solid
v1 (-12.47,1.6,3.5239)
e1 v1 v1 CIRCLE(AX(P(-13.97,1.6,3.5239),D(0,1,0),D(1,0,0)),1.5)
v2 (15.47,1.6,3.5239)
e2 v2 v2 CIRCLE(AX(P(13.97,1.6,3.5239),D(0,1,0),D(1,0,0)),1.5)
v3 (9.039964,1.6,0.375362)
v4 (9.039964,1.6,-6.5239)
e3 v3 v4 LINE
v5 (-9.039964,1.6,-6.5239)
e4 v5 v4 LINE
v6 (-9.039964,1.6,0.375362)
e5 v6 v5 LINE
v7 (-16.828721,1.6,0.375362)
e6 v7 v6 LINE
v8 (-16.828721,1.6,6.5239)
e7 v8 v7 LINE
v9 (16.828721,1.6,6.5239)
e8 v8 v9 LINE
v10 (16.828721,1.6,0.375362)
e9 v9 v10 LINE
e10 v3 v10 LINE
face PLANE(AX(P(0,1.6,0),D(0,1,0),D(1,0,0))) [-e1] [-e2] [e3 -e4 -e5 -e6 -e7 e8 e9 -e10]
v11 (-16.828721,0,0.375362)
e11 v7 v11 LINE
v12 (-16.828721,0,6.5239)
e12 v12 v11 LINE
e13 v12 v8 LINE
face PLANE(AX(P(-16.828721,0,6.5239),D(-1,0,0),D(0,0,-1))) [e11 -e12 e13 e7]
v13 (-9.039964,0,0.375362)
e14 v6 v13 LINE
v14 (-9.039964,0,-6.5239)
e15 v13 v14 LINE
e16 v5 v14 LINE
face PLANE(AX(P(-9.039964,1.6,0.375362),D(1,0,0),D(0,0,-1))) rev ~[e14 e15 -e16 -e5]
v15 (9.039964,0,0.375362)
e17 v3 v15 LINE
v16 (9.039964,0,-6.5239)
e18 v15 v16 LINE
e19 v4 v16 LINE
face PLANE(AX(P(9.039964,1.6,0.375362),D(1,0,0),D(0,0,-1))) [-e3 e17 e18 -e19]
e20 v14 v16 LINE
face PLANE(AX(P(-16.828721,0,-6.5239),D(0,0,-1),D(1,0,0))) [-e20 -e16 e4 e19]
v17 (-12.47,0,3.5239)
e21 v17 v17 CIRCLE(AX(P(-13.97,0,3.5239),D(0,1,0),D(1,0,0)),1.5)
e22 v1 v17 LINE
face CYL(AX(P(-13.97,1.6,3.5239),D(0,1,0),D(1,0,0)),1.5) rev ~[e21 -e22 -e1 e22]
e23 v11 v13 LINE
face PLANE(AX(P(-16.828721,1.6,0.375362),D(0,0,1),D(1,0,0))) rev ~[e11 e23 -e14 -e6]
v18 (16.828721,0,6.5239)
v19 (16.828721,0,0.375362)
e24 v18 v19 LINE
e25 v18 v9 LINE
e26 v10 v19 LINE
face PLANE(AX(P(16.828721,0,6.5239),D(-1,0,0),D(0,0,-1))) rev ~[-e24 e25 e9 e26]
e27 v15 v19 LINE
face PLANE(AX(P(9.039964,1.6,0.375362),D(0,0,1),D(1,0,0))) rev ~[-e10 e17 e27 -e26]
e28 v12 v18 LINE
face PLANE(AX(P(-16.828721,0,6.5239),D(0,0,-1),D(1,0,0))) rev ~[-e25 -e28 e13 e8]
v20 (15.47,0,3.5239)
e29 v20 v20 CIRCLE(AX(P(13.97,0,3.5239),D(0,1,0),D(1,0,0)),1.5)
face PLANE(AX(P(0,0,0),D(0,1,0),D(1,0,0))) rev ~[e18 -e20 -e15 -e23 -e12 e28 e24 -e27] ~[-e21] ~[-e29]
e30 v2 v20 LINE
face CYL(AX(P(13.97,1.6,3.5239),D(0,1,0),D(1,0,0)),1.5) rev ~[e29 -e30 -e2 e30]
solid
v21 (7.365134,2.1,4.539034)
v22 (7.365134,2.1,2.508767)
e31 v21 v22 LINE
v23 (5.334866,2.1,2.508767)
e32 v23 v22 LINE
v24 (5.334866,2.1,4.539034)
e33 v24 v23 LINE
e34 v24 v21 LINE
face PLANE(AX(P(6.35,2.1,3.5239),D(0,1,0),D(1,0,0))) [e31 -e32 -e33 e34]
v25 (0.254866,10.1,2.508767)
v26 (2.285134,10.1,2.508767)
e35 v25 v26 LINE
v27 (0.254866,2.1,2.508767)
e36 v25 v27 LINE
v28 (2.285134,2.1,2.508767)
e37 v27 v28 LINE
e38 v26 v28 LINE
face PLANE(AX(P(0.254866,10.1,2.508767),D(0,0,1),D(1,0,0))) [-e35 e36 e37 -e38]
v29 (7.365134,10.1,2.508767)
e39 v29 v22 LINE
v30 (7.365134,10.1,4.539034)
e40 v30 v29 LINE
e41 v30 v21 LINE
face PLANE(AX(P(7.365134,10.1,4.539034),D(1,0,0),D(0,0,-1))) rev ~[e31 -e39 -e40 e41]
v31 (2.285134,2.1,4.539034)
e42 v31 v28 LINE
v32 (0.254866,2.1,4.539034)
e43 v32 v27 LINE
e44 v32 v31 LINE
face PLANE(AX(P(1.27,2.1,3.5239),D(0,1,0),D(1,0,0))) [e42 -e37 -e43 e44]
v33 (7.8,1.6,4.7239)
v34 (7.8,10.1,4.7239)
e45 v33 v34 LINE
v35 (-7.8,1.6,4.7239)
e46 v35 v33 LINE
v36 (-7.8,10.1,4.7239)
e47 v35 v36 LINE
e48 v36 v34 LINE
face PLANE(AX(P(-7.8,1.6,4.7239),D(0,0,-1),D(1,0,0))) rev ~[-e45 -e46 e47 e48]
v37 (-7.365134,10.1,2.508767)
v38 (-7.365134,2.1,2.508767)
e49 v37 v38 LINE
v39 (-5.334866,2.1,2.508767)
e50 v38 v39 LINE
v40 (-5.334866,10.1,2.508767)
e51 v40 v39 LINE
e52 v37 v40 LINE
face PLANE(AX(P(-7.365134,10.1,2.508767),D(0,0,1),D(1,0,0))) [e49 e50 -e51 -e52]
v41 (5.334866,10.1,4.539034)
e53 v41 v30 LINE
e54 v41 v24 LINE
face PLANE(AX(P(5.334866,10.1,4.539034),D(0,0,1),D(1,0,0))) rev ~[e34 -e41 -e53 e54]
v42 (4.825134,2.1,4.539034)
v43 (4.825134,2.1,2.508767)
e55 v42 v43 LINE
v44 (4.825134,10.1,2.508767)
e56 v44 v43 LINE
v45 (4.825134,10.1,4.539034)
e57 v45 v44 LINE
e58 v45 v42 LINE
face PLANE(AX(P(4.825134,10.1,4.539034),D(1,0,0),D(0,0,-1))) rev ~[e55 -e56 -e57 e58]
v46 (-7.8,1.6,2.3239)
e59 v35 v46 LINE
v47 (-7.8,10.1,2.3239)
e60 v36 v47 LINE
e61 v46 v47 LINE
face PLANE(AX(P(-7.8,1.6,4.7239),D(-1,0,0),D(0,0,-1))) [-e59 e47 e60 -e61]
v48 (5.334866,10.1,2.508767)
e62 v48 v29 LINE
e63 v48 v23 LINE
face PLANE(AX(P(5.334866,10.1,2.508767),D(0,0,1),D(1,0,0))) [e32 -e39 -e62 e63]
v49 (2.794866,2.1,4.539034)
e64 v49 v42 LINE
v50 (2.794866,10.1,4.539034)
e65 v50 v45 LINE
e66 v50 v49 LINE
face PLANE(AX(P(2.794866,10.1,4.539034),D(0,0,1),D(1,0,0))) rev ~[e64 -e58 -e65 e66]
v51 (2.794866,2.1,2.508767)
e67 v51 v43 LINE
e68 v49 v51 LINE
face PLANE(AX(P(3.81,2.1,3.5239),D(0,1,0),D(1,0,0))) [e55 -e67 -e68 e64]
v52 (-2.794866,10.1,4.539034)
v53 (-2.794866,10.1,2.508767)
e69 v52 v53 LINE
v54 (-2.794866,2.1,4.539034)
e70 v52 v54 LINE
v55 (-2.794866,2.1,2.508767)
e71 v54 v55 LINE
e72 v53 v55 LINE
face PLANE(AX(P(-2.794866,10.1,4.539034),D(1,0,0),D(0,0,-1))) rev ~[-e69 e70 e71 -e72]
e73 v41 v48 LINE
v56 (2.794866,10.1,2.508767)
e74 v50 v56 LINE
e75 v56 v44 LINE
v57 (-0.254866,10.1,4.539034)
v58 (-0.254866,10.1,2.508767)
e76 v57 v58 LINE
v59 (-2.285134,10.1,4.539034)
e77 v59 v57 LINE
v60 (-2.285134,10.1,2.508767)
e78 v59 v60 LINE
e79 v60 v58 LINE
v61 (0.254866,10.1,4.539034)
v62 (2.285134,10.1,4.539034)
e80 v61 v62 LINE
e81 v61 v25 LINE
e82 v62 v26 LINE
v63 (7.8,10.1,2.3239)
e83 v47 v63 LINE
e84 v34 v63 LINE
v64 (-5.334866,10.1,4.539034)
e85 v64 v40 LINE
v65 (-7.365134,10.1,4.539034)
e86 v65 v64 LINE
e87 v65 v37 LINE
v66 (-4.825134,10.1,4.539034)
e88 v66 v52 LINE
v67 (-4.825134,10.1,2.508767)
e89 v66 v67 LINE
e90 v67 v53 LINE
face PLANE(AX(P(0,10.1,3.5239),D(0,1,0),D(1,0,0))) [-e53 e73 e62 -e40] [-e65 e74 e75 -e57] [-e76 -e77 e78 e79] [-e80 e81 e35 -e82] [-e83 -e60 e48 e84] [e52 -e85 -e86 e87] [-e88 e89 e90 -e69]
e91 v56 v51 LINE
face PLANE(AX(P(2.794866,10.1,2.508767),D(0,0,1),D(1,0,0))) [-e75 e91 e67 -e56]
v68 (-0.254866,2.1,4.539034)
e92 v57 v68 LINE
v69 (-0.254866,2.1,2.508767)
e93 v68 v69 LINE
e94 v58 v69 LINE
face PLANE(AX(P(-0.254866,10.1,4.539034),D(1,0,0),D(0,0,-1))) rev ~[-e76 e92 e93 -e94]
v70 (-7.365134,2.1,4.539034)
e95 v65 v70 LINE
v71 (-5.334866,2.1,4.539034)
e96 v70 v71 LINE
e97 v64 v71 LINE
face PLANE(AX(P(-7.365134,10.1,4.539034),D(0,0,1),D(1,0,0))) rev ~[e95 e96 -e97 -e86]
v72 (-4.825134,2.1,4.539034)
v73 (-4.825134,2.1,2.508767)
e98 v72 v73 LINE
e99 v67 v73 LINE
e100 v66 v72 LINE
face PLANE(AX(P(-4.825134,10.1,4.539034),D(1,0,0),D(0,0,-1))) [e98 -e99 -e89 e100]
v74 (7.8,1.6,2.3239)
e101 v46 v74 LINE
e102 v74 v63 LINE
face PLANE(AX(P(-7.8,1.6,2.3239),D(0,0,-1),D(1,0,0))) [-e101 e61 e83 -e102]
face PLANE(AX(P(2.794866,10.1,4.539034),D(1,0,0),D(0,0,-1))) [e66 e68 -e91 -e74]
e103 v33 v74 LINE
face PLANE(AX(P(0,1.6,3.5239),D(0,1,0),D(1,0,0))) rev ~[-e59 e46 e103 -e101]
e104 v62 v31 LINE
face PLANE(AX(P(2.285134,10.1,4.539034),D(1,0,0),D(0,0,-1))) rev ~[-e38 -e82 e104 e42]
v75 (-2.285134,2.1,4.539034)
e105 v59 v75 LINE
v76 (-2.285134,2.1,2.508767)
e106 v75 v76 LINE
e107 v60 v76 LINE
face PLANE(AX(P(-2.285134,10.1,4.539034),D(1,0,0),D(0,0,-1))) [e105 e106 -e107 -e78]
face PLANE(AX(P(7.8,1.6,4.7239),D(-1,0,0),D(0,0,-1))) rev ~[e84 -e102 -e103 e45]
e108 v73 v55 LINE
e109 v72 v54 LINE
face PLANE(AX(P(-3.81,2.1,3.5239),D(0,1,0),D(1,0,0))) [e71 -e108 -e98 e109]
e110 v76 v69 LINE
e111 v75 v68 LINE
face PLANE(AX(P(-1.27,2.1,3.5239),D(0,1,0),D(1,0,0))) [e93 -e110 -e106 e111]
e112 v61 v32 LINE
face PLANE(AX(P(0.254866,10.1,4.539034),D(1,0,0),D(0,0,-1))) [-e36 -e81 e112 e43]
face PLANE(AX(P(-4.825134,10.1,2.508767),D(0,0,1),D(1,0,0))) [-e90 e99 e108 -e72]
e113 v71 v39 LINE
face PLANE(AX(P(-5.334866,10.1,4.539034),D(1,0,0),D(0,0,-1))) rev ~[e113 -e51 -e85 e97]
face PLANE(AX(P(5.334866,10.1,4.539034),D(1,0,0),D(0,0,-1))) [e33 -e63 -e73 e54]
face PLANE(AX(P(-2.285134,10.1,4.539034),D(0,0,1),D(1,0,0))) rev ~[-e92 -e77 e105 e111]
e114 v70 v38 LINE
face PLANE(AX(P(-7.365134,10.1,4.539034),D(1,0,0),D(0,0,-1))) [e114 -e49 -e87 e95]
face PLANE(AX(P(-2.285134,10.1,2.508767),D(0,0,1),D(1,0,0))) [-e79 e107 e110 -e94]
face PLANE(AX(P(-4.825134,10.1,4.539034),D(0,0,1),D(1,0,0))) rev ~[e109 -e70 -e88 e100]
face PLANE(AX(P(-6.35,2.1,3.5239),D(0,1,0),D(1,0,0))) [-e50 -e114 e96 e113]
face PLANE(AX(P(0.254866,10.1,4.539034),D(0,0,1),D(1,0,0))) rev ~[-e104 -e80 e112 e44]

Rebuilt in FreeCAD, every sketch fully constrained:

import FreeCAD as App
import Part
import Sketcher


def add_polygon(sketch, points):
    """Adds a closed chain of lines whose ends are joined by coincident constraints."""
    first, n = sketch.GeometryCount, len(points)
    for a, b in zip(points, points[1:] + points[:1]):
        sketch.addGeometry(Part.LineSegment(App.Vector(*a, 0), App.Vector(*b, 0)), False)
    for i in range(n):
        sketch.addConstraint(Sketcher.Constraint("Coincident", first + i, 2, first + (i + 1) % n, 1))

doc = App.newDocument("Part")
params = doc.addObject("Spreadsheet::Sheet", "Params")
for row, (alias, value) in enumerate([
    ("pad1_length", "1.6 mm"),
    ("sketch2_diameter", "3 mm"),
    ("sketch4_width", "15.6 mm"),
    ("sketch4_height", "2.4 mm"),
    ("pad2_length", "8.5 mm"),
    ("pocket3_length", "8 mm"),
], start=1):
    params.set(f"A{row}", alias)
    params.set(f"B{row}", "=" + value)
    params.setAlias(f"B{row}", alias)

body = doc.addObject("PartDesign::Body", "Body")

# Sketch on XZ plane
sketch1 = body.newObject("Sketcher::SketchObject", "Sketch")
sketch1.AttachmentSupport = (doc.getObject("XZ_Plane"), [""])
sketch1.MapMode = "FlatFace"
add_polygon(sketch1, [(-16.828721, -6.5239), (-16.828721, 6.5239), (16.828721, 6.5239), (16.828721, -6.5239)])  # lines 0-3
sketch1.addConstraint([
    Sketcher.Constraint("Vertical", 0),
    Sketcher.Constraint("Horizontal", 1),
    Sketcher.Constraint("Vertical", 2),
    Sketcher.Constraint("Horizontal", 3),
    Sketcher.Constraint("Symmetric", 0, 2, 2, 2, -1, 1),
    Sketcher.Constraint("DistanceY", 0, 1, 0, 2, 13.047801),
    Sketcher.Constraint("DistanceX", 1, 1, 1, 2, 33.657443),
])
pad1 = body.newObject("PartDesign::Pad", "Pad")
pad1.Profile = sketch1
pad1.setExpression("Length", "Params.pad1_length")
pad1.Reversed = True

# Sketch on XZ plane
sketch2 = body.newObject("Sketcher::SketchObject", "Sketch001")
sketch2.AttachmentSupport = (doc.getObject("XZ_Plane"), [""])
sketch2.MapMode = "FlatFace"
sketch2.AttachmentOffset = App.Placement(App.Vector(0, 0, -1.6), App.Rotation())
sketch2.addGeometry([
    Part.Circle(App.Vector(-13.97, 3.5239, 0), App.Vector(0, 0, 1), 1.5),
    Part.Circle(App.Vector(13.97, 3.5239, 0), App.Vector(0, 0, 1), 1.5),
], False)
sketch2.addConstraint([
    Sketcher.Constraint("Equal", 0, 1),
    Sketcher.Constraint("Symmetric", 0, 3, 1, 3, -2),
    Sketcher.Constraint("Diameter", 0, 3.0),
    Sketcher.Constraint("DistanceX", 0, 3, -1, 1, 13.97),
    Sketcher.Constraint("DistanceY", -1, 1, 0, 3, 3.5239),
])
sketch2.setExpression("Constraints[2]", "Params.sketch2_diameter")
pocket1 = body.newObject("PartDesign::Pocket", "Pocket")
pocket1.Profile = sketch2
pocket1.Type = "ThroughAll"
pocket1.Reversed = True

# Sketch on XZ plane
sketch3 = body.newObject("Sketcher::SketchObject", "Sketch002")
sketch3.AttachmentSupport = (doc.getObject("XZ_Plane"), [""])
sketch3.MapMode = "FlatFace"
sketch3.AttachmentOffset = App.Placement(App.Vector(0, 0, -1.6), App.Rotation())
add_polygon(sketch3, [(-16.828721, -6.5239), (-16.828721, 0.375362), (-9.039964, 0.375362), (-9.039964, -6.5239)])  # lines 0-3
add_polygon(sketch3, [(9.039964, -6.5239), (9.039964, 0.375362), (16.828721, 0.375362), (16.828721, -6.5239)])  # lines 4-7
sketch3.addConstraint([
    Sketcher.Constraint("Vertical", 0),
    Sketcher.Constraint("Horizontal", 1),
    Sketcher.Constraint("Vertical", 2),
    Sketcher.Constraint("Horizontal", 3),
    Sketcher.Constraint("Vertical", 4),
    Sketcher.Constraint("Horizontal", 5),
    Sketcher.Constraint("Vertical", 6),
    Sketcher.Constraint("Horizontal", 7),
    Sketcher.Constraint("Symmetric", 1, 2, 4, 2, -2),
    Sketcher.Constraint("Symmetric", 3, 2, 6, 2, -2),
    Sketcher.Constraint("DistanceY", 2, 2, -1, 1, 6.5239),
    Sketcher.Constraint("DistanceX", 1, 1, 1, 2, 7.788758),
    Sketcher.Constraint("DistanceY", 0, 1, 0, 2, 6.899262),
    Sketcher.Constraint("DistanceX", 0, 2, -1, 1, 16.828721),
])
pocket2 = body.newObject("PartDesign::Pocket", "Pocket001")
pocket2.Profile = sketch3
pocket2.Type = "ThroughAll"
pocket2.Reversed = True
body2 = doc.addObject("PartDesign::Body", "Body001")

# Sketch on XZ plane
sketch4 = body2.newObject("Sketcher::SketchObject", "Sketch003")
sketch4.AttachmentSupport = (doc.getObject("XZ_Plane001"), [""])
sketch4.MapMode = "FlatFace"
sketch4.AttachmentOffset = App.Placement(App.Vector(0, 0, -1.6), App.Rotation())
add_polygon(sketch4, [(-7.8, 2.3239), (-7.8, 4.7239), (7.8, 4.7239), (7.8, 2.3239)])  # lines 0-3
sketch4.addConstraint([
    Sketcher.Constraint("Vertical", 0),
    Sketcher.Constraint("Horizontal", 1),
    Sketcher.Constraint("Vertical", 2),
    Sketcher.Constraint("Horizontal", 3),
    Sketcher.Constraint("DistanceX", 1, 1, 1, 2, 15.6),
    Sketcher.Constraint("DistanceY", 0, 1, 0, 2, 2.4),
    Sketcher.Constraint("DistanceX", 0, 2, -1, 1, 7.8),
    Sketcher.Constraint("DistanceY", -1, 1, 0, 2, 4.7239),
])
sketch4.setExpression("Constraints[8]", "Params.sketch4_width")
sketch4.setExpression("Constraints[9]", "Params.sketch4_height")
pad2 = body2.newObject("PartDesign::Pad", "Pad001")
pad2.Profile = sketch4
pad2.setExpression("Length", "Params.pad2_length")
pad2.Reversed = True

# Sketch on XZ plane
sketch5 = body2.newObject("Sketcher::SketchObject", "Sketch004")
sketch5.AttachmentSupport = (doc.getObject("XZ_Plane001"), [""])
sketch5.MapMode = "FlatFace"
sketch5.AttachmentOffset = App.Placement(App.Vector(0, 0, -10.1), App.Rotation())
add_polygon(sketch5, [(-4.825134, 2.508767), (-4.825134, 4.539034), (-2.794866, 4.539034), (-2.794866, 2.508767)])  # lines 0-3
add_polygon(sketch5, [(-7.365134, 2.508767), (-7.365134, 4.539034), (-5.334866, 4.539034), (-5.334866, 2.508767)])  # lines 4-7
add_polygon(sketch5, [(-2.285134, 2.508767), (-2.285134, 4.539034), (-0.254866, 4.539034), (-0.254866, 2.508767)])  # lines 8-11
add_polygon(sketch5, [(0.254866, 2.508767), (0.254866, 4.539034), (2.285134, 4.539034), (2.285134, 2.508767)])  # lines 12-15
add_polygon(sketch5, [(2.794866, 2.508767), (2.794866, 4.539034), (4.825134, 4.539034), (4.825134, 2.508767)])  # lines 16-19
add_polygon(sketch5, [(5.334866, 2.508767), (5.334866, 4.539034), (7.365134, 4.539034), (7.365134, 2.508767)])  # lines 20-23
sketch5.addConstraint([
    Sketcher.Constraint("Vertical", 0),
    Sketcher.Constraint("Horizontal", 1),
    Sketcher.Constraint("Vertical", 2),
    Sketcher.Constraint("Horizontal", 3),
    Sketcher.Constraint("Vertical", 4),
    Sketcher.Constraint("Horizontal", 5),
    Sketcher.Constraint("Vertical", 6),
    Sketcher.Constraint("Horizontal", 7),
    Sketcher.Constraint("Vertical", 8),
    Sketcher.Constraint("Horizontal", 9),
    Sketcher.Constraint("Vertical", 10),
    Sketcher.Constraint("Horizontal", 11),
    Sketcher.Constraint("Vertical", 12),
    Sketcher.Constraint("Horizontal", 13),
    Sketcher.Constraint("Vertical", 14),
    Sketcher.Constraint("Horizontal", 15),
    Sketcher.Constraint("Vertical", 16),
    Sketcher.Constraint("Horizontal", 17),
    Sketcher.Constraint("Vertical", 18),
    Sketcher.Constraint("Horizontal", 19),
    Sketcher.Constraint("Vertical", 20),
    Sketcher.Constraint("Horizontal", 21),
    Sketcher.Constraint("Vertical", 22),
    Sketcher.Constraint("Horizontal", 23),
    Sketcher.Constraint("Symmetric", 9, 2, 12, 2, -2),
    Sketcher.Constraint("Symmetric", 11, 2, 14, 2, -2),
    Sketcher.Constraint("Symmetric", 1, 2, 16, 2, -2),
    Sketcher.Constraint("Symmetric", 3, 2, 18, 2, -2),
    Sketcher.Constraint("Symmetric", 5, 2, 20, 2, -2),
    Sketcher.Constraint("Symmetric", 7, 2, 22, 2, -2),
    Sketcher.Constraint("Horizontal", 1, 2, 4, 2),
    Sketcher.Constraint("Horizontal", 3, 2, 6, 2),
    Sketcher.Constraint("Horizontal", 5, 2, 8, 2),
    Sketcher.Constraint("Horizontal", 7, 2, 10, 2),
    Sketcher.Constraint("Equal", 3, 5),
    Sketcher.Constraint("Equal", 7, 9),
    Sketcher.Constraint("Equal", 23, 0),
    Sketcher.Constraint("DistanceX", 4, 2, 0, 2, 2.54),
    Sketcher.Constraint("DistanceX", 0, 2, 8, 2, 2.54),
    Sketcher.Constraint("DistanceX", 8, 2, 12, 2, 2.54),
    Sketcher.Constraint("DistanceX", 1, 1, 1, 2, 2.030267),
    Sketcher.Constraint("DistanceY", -1, 1, 0, 2, 4.539034),
])
pocket3 = body2.newObject("PartDesign::Pocket", "Pocket002")
pocket3.Profile = sketch5
pocket3.setExpression("Length", "Params.pocket3_length")
pocket3.Reversed = True

doc.recompute()
